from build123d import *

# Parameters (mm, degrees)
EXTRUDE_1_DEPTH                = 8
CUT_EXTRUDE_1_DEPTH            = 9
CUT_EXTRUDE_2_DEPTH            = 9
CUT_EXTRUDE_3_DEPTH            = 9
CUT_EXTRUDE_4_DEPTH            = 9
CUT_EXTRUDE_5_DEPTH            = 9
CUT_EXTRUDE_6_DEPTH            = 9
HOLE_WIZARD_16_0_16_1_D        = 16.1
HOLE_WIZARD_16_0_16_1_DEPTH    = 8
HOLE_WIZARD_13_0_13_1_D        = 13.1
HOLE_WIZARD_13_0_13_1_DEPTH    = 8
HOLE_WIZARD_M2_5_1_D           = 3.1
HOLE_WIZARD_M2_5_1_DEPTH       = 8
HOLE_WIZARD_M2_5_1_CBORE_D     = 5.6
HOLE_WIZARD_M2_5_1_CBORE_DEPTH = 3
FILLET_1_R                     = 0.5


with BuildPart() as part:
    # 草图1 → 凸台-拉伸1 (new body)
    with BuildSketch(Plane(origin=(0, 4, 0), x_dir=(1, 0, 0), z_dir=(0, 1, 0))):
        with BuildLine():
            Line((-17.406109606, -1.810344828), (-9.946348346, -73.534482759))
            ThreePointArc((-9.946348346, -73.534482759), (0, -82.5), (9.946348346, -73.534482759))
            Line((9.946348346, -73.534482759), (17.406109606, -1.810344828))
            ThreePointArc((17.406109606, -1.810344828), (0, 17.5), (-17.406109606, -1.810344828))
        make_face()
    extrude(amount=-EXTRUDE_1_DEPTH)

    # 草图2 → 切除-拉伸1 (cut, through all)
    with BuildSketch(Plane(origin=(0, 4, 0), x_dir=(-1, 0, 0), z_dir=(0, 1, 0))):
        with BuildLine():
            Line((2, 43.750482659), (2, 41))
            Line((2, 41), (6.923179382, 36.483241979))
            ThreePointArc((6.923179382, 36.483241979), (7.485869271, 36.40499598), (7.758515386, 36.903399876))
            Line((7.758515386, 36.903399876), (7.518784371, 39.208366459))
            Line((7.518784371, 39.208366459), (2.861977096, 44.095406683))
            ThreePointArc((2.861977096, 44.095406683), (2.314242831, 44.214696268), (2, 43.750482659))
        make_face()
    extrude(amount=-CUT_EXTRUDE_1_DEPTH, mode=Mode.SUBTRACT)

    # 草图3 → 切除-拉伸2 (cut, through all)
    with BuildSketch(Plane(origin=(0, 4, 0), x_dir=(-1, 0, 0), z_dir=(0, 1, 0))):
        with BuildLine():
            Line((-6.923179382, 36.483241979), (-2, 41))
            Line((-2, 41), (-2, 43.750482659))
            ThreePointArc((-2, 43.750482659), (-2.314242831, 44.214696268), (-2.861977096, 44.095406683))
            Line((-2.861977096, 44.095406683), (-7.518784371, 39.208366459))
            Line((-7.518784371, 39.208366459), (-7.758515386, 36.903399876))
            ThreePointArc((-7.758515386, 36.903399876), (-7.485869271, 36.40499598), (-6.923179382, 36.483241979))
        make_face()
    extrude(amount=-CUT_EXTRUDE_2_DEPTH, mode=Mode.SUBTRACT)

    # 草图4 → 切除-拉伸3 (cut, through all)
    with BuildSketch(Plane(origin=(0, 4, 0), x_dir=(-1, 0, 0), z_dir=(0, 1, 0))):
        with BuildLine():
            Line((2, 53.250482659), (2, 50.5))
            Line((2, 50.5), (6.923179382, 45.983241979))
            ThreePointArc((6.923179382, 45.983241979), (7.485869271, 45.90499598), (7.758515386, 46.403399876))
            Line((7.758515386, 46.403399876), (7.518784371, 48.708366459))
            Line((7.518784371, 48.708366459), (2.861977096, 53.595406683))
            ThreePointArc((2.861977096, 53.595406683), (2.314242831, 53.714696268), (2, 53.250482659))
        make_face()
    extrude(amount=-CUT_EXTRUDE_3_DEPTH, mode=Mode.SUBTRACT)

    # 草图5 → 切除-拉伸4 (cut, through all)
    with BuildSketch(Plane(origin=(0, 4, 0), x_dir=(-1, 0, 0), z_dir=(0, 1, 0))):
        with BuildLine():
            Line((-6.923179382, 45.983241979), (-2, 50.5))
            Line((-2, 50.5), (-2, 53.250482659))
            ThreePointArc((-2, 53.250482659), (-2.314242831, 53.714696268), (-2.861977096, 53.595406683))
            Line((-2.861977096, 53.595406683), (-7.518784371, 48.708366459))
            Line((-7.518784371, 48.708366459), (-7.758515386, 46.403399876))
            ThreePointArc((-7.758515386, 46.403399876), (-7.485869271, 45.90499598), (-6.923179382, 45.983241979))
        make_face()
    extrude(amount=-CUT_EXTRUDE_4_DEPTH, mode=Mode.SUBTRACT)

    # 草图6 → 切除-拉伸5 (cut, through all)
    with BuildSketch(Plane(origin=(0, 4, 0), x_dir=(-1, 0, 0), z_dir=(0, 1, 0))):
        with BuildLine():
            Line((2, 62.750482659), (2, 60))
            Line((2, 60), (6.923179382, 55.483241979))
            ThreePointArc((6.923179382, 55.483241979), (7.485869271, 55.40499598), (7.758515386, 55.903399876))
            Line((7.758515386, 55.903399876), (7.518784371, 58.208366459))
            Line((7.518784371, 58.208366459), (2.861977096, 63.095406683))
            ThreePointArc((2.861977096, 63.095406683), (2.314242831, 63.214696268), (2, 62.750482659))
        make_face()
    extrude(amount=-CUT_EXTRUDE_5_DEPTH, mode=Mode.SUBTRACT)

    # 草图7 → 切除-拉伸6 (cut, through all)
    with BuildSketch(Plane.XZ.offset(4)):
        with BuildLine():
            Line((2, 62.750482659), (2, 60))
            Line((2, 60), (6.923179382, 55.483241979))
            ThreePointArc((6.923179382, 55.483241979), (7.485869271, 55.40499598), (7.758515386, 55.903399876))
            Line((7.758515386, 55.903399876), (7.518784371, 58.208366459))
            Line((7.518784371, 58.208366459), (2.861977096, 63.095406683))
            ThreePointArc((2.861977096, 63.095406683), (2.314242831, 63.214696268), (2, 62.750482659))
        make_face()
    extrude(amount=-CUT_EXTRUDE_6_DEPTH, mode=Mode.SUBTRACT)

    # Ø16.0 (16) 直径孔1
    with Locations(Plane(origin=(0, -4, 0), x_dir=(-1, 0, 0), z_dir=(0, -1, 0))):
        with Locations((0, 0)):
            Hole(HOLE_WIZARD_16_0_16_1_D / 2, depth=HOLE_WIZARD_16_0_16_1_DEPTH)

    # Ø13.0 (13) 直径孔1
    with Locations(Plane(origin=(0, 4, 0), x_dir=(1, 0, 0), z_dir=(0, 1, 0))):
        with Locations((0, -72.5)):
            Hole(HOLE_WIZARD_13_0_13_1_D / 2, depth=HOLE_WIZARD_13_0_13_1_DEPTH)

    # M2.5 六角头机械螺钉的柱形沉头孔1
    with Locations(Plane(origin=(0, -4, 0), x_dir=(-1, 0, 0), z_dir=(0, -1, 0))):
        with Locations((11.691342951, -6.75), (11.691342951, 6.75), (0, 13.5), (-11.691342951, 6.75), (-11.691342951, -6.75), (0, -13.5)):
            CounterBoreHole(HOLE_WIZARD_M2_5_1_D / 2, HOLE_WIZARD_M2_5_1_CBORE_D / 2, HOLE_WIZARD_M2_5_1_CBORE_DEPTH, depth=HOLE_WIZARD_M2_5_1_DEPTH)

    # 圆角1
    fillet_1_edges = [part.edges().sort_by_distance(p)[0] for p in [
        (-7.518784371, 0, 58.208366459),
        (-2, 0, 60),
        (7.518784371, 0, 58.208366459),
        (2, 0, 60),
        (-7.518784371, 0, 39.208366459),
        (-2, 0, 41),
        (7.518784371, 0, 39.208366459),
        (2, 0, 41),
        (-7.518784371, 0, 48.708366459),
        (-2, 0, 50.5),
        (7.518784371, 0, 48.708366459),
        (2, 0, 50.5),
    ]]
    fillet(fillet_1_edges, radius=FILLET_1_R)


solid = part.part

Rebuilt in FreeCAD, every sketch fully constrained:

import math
import FreeCAD as App
import Part
import Sketcher
Q = App.Units.Quantity


def edges_at(feature, points):
    """Names of the edges that pass closest to the given points."""
    edges = feature.Shape.Edges
    near = lambda p: min(range(len(edges)), key=lambda i: edges[i].distToShape(Part.Vertex(*p))[0])
    return sorted({f"Edge{near(p) + 1}" for p in points})

doc = App.newDocument("Part")
params = doc.addObject("Spreadsheet::Sheet", "Params")
for row, (alias, value) in enumerate([
    ("sketch1_radius", "10 mm"),
    ("sketch1_radius2", "17.5 mm"),
    ("pad1_length", "8 mm"),
    ("sketch2_radius", "0.5 mm"),
    ("sketch3_radius", "0.5 mm"),
    ("sketch4_radius", "0.5 mm"),
    ("sketch5_radius", "0.5 mm"),
    ("sketch6_radius", "0.5 mm"),
    ("sketch7_radius", "0.5 mm"),
    ("sketch8_diameter", "16.1 mm"),
    ("hole_diameter", "16.1 mm"),
    ("hole_depth", "8 mm"),
    ("sketch9_diameter", "13.1 mm"),
    ("hole2_diameter", "13.1 mm"),
    ("hole2_depth", "8 mm"),
    ("sketch10_diameter", "3.1 mm"),
    ("hole3_diameter", "3.1 mm"),
    ("hole3_depth", "8 mm"),
    ("hole3_cbore_diameter", "5.6 mm"),
    ("hole3_cbore_depth", "3 mm"),
    ("fillet_radius", "0.5 mm"),
], start=1):
    params.set(f"A{row}", alias)
    params.set(f"B{row}", "=" + value)
    params.setAlias(f"B{row}", alias)

body = doc.addObject("PartDesign::Body", "Body")

sketch1 = body.newObject("Sketcher::SketchObject", "Sketch")
sketch1.AttachmentSupport = (doc.getObject("XZ_Plane"), [""])
sketch1.MapMode = "FlatFace"
sketch1.AttachmentOffset = App.Placement(App.Vector(0, 0, -4), App.Rotation())
sketch1.addGeometry([
    Part.LineSegment(App.Vector(-17.40611, 1.810345, 0), App.Vector(-9.946348, 73.534483, 0)),
    Part.ArcOfCircle(Part.Circle(App.Vector(0, 72.5, 0), App.Vector(0, 0, 1), 10), math.radians(5.937772), math.radians(174.062228)),
    Part.LineSegment(App.Vector(9.946348, 73.534483, 0), App.Vector(17.40611, 1.810345, 0)),
    Part.ArcOfCircle(Part.Circle(App.Vector(0, 0, 0), App.Vector(0, 0, 1), 17.5), math.radians(174.062228), math.radians(365.937772)),
], False)
sketch1.addConstraint([
    Sketcher.Constraint("Tangent", 0, 2, 1, 2),
    Sketcher.Constraint("Tangent", 1, 1, 2, 1),
    Sketcher.Constraint("Tangent", 2, 2, 3, 2),
    Sketcher.Constraint("Tangent", 3, 1, 0, 1),
    Sketcher.Constraint("Coincident", 3, 3, -1, 1),
    Sketcher.Constraint("PointOnObject", 1, 3, -2),
    Sketcher.Constraint("Radius", 1, Q("10 mm")),
    Sketcher.Constraint("Radius", 3, Q("17.5 mm")),
    Sketcher.Constraint("DistanceY", -1, 1, 1, 3, Q("72.5 mm")),
])
sketch1.setExpression("Constraints[6]", "Params.sketch1_radius")
sketch1.setExpression("Constraints[7]", "Params.sketch1_radius2")
pad1 = body.newObject("PartDesign::Pad", "Pad")
pad1.Profile = sketch1
pad1.setExpression("Length", "Params.pad1_length")

sketch2 = body.newObject("Sketcher::SketchObject", "Sketch001")
sketch2.AttachmentSupport = (doc.getObject("XZ_Plane"), [""])
sketch2.MapMode = "FlatFace"
sketch2.AttachmentOffset = App.Placement(App.Vector(0, 0, -4), App.Rotation())
sketch2.addGeometry([
    Part.LineSegment(App.Vector(-2, 43.750483, 0), App.Vector(-2, 41, 0)),
    Part.LineSegment(App.Vector(-2, 41, 0), App.Vector(-6.923179, 36.483242, 0)),
    Part.ArcOfCircle(Part.Circle(App.Vector(-7.261198, 36.851676, 0), App.Vector(0, 0, 1), 0.5), math.radians(174.062227), math.radians(312.534745)),
    Part.LineSegment(App.Vector(-7.758515, 36.9034, 0), App.Vector(-7.518784, 39.208366, 0)),
    Part.LineSegment(App.Vector(-7.518784, 39.208366, 0), App.Vector(-2.861977, 44.095407, 0)),
    Part.ArcOfCircle(Part.Circle(App.Vector(-2.5, 43.750483, 0), App.Vector(0, 0, 1), 0.5), math.radians(0), math.radians(136.381918)),
], False)
sketch2.addConstraint([
    Sketcher.Constraint("Coincident", 0, 2, 1, 1),
    Sketcher.Constraint("Tangent", 1, 2, 2, 2),
    Sketcher.Constraint("Tangent", 2, 1, 3, 1),
    Sketcher.Constraint("Coincident", 3, 2, 4, 1),
    Sketcher.Constraint("Tangent", 4, 2, 5, 2),
    Sketcher.Constraint("Tangent", 5, 1, 0, 1),
    Sketcher.Constraint("Vertical", 0),
    Sketcher.Constraint("Equal", 2, 5),
    Sketcher.Constraint("Radius", 2, Q("0.5 mm")),
    Sketcher.Constraint("DistanceX", 0, 2, -1, 1, Q("2 mm")),
    Sketcher.Constraint("DistanceY", -1, 1, 0, 2, Q("41 mm")),
    Sketcher.Constraint("Distance", 3, Q("2.3174 mm")),
    Sketcher.Constraint("DistanceY", -1, 1, 2, 1, Q("36.9034 mm")),
    Sketcher.Constraint("DistanceY", 0, 2, 0, 1, Q("2.750483 mm")),
    Sketcher.Constraint("DistanceX", 1, 2, -1, 1, Q("6.923179 mm")),
    Sketcher.Constraint("DistanceY", -1, 1, 1, 2, Q("36.483242 mm")),
])
sketch2.setExpression("Constraints[8]", "Params.sketch2_radius")
pocket1 = body.newObject("PartDesign::Pocket", "Pocket")
pocket1.Profile = sketch2
pocket1.Type = "ThroughAll"
pocket1.Reversed = True

sketch3 = body.newObject("Sketcher::SketchObject", "Sketch002")
sketch3.AttachmentSupport = (doc.getObject("XZ_Plane"), [""])
sketch3.MapMode = "FlatFace"
sketch3.AttachmentOffset = App.Placement(App.Vector(0, 0, -4), App.Rotation())
sketch3.addGeometry([
    Part.LineSegment(App.Vector(6.923179, 36.483242, 0), App.Vector(2, 41, 0)),
    Part.LineSegment(App.Vector(2, 41, 0), App.Vector(2, 43.750483, 0)),
    Part.ArcOfCircle(Part.Circle(App.Vector(2.5, 43.750483, 0), App.Vector(0, 0, 1), 0.5), math.radians(43.618082), math.radians(180)),
    Part.LineSegment(App.Vector(2.861977, 44.095407, 0), App.Vector(7.518784, 39.208366, 0)),
    Part.LineSegment(App.Vector(7.518784, 39.208366, 0), App.Vector(7.758515, 36.9034, 0)),
    Part.ArcOfCircle(Part.Circle(App.Vector(7.261198, 36.851676, 0), App.Vector(0, 0, 1), 0.5), math.radians(-132.534745), math.radians(5.937773)),
], False)
sketch3.addConstraint([
    Sketcher.Constraint("Coincident", 0, 2, 1, 1),
    Sketcher.Constraint("Tangent", 1, 2, 2, 2),
    Sketcher.Constraint("Tangent", 2, 1, 3, 1),
    Sketcher.Constraint("Coincident", 3, 2, 4, 1),
    Sketcher.Constraint("Tangent", 4, 2, 5, 2),
    Sketcher.Constraint("Tangent", 5, 1, 0, 1),
    Sketcher.Constraint("Vertical", 1),
    Sketcher.Constraint("Equal", 2, 5),
    Sketcher.Constraint("Radius", 2, Q("0.5 mm")),
    Sketcher.Constraint("DistanceX", -1, 1, 0, 2, Q("2 mm")),
    Sketcher.Constraint("DistanceY", -1, 1, 0, 2, Q("41 mm")),
    Sketcher.Constraint("Distance", 4, Q("2.3174 mm")),
    Sketcher.Constraint("DistanceY", -1, 1, 4, 2, Q("36.9034 mm")),
    Sketcher.Constraint("DistanceY", 1, 1, 1, 2, Q("2.750483 mm")),
    Sketcher.Constraint("DistanceX", -1, 1, 5, 1, Q("6.923179 mm")),
    Sketcher.Constraint("DistanceY", -1, 1, 5, 1, Q("36.483242 mm")),
])
sketch3.setExpression("Constraints[8]", "Params.sketch3_radius")
pocket2 = body.newObject("PartDesign::Pocket", "Pocket001")
pocket2.Profile = sketch3
pocket2.Type = "ThroughAll"
pocket2.Reversed = True

sketch4 = body.newObject("Sketcher::SketchObject", "Sketch003")
sketch4.AttachmentSupport = (doc.getObject("XZ_Plane"), [""])
sketch4.MapMode = "FlatFace"
sketch4.AttachmentOffset = App.Placement(App.Vector(0, 0, -4), App.Rotation())
sketch4.addGeometry([
    Part.LineSegment(App.Vector(-2, 53.250483, 0), App.Vector(-2, 50.5, 0)),
    Part.LineSegment(App.Vector(-2, 50.5, 0), App.Vector(-6.923179, 45.983242, 0)),
    Part.ArcOfCircle(Part.Circle(App.Vector(-7.261198, 46.351676, 0), App.Vector(0, 0, 1), 0.5), math.radians(174.062227), math.radians(312.534745)),
    Part.LineSegment(App.Vector(-7.758515, 46.4034, 0), App.Vector(-7.518784, 48.708366, 0)),
    Part.LineSegment(App.Vector(-7.518784, 48.708366, 0), App.Vector(-2.861977, 53.595407, 0)),
    Part.ArcOfCircle(Part.Circle(App.Vector(-2.5, 53.250483, 0), App.Vector(0, 0, 1), 0.5), math.radians(0), math.radians(136.381918)),
], False)
sketch4.addConstraint([
    Sketcher.Constraint("Coincident", 0, 2, 1, 1),
    Sketcher.Constraint("Tangent", 1, 2, 2, 2),
    Sketcher.Constraint("Tangent", 2, 1, 3, 1),
    Sketcher.Constraint("Coincident", 3, 2, 4, 1),
    Sketcher.Constraint("Tangent", 4, 2, 5, 2),
    Sketcher.Constraint("Tangent", 5, 1, 0, 1),
    Sketcher.Constraint("Vertical", 0),
    Sketcher.Constraint("Equal", 2, 5),
    Sketcher.Constraint("Radius", 2, Q("0.5 mm")),
    Sketcher.Constraint("DistanceX", 0, 2, -1, 1, Q("2 mm")),
    Sketcher.Constraint("DistanceY", -1, 1, 0, 2, Q("50.5 mm")),
    Sketcher.Constraint("Distance", 3, Q("2.3174 mm")),
    Sketcher.Constraint("DistanceY", -1, 1, 2, 1, Q("46.4034 mm")),
    Sketcher.Constraint("DistanceY", 0, 2, 0, 1, Q("2.750483 mm")),
    Sketcher.Constraint("DistanceX", 1, 2, -1, 1, Q("6.923179 mm")),
    Sketcher.Constraint("DistanceY", -1, 1, 1, 2, Q("45.983242 mm")),
])
sketch4.setExpression("Constraints[8]", "Params.sketch4_radius")
pocket3 = body.newObject("PartDesign::Pocket", "Pocket002")
pocket3.Profile = sketch4
pocket3.Type = "ThroughAll"
pocket3.Reversed = True

sketch5 = body.newObject("Sketcher::SketchObject", "Sketch004")
sketch5.AttachmentSupport = (doc.getObject("XZ_Plane"), [""])
sketch5.MapMode = "FlatFace"
sketch5.AttachmentOffset = App.Placement(App.Vector(0, 0, -4), App.Rotation())
sketch5.addGeometry([
    Part.LineSegment(App.Vector(6.923179, 45.983242, 0), App.Vector(2, 50.5, 0)),
    Part.LineSegment(App.Vector(2, 50.5, 0), App.Vector(2, 53.250483, 0)),
    Part.ArcOfCircle(Part.Circle(App.Vector(2.5, 53.250483, 0), App.Vector(0, 0, 1), 0.5), math.radians(43.618082), math.radians(180)),
    Part.LineSegment(App.Vector(2.861977, 53.595407, 0), App.Vector(7.518784, 48.708366, 0)),
    Part.LineSegment(App.Vector(7.518784, 48.708366, 0), App.Vector(7.758515, 46.4034, 0)),
    Part.ArcOfCircle(Part.Circle(App.Vector(7.261198, 46.351676, 0), App.Vector(0, 0, 1), 0.5), math.radians(-132.534745), math.radians(5.937773)),
], False)
sketch5.addConstraint([
    Sketcher.Constraint("Coincident", 0, 2, 1, 1),
    Sketcher.Constraint("Tangent", 1, 2, 2, 2),
    Sketcher.Constraint("Tangent", 2, 1, 3, 1),
    Sketcher.Constraint("Coincident", 3, 2, 4, 1),
    Sketcher.Constraint("Tangent", 4, 2, 5, 2),
    Sketcher.Constraint("Tangent", 5, 1, 0, 1),
    Sketcher.Constraint("Vertical", 1),
    Sketcher.Constraint("Equal", 2, 5),
    Sketcher.Constraint("Radius", 2, Q("0.5 mm")),
    Sketcher.Constraint("DistanceX", -1, 1, 0, 2, Q("2 mm")),
    Sketcher.Constraint("DistanceY", -1, 1, 0, 2, Q("50.5 mm")),
    Sketcher.Constraint("Distance", 4, Q("2.3174 mm")),
    Sketcher.Constraint("DistanceY", -1, 1, 4, 2, Q("46.4034 mm")),
    Sketcher.Constraint("DistanceY", 1, 1, 1, 2, Q("2.750483 mm")),
    Sketcher.Constraint("DistanceX", -1, 1, 5, 1, Q("6.923179 mm")),
    Sketcher.Constraint("DistanceY", -1, 1, 5, 1, Q("45.983242 mm")),
])
sketch5.setExpression("Constraints[8]", "Params.sketch5_radius")
pocket4 = body.newObject("PartDesign::Pocket", "Pocket003")
pocket4.Profile = sketch5
pocket4.Type = "ThroughAll"
pocket4.Reversed = True

sketch6 = body.newObject("Sketcher::SketchObject", "Sketch005")
sketch6.AttachmentSupport = (doc.getObject("XZ_Plane"), [""])
sketch6.MapMode = "FlatFace"
sketch6.AttachmentOffset = App.Placement(App.Vector(0, 0, -4), App.Rotation())
sketch6.addGeometry([
    Part.LineSegment(App.Vector(-2, 62.750483, 0), App.Vector(-2, 60, 0)),
    Part.LineSegment(App.Vector(-2, 60, 0), App.Vector(-6.923179, 55.483242, 0)),
    Part.ArcOfCircle(Part.Circle(App.Vector(-7.261198, 55.851676, 0), App.Vector(0, 0, 1), 0.5), math.radians(174.062227), math.radians(312.534745)),
    Part.LineSegment(App.Vector(-7.758515, 55.9034, 0), App.Vector(-7.518784, 58.208366, 0)),
    Part.LineSegment(App.Vector(-7.518784, 58.208366, 0), App.Vector(-2.861977, 63.095407, 0)),
    Part.ArcOfCircle(Part.Circle(App.Vector(-2.5, 62.750483, 0), App.Vector(0, 0, 1), 0.5), math.radians(0), math.radians(136.381918)),
], False)
sketch6.addConstraint([
    Sketcher.Constraint("Coincident", 0, 2, 1, 1),
    Sketcher.Constraint("Tangent", 1, 2, 2, 2),
    Sketcher.Constraint("Tangent", 2, 1, 3, 1),
    Sketcher.Constraint("Coincident", 3, 2, 4, 1),
    Sketcher.Constraint("Tangent", 4, 2, 5, 2),
    Sketcher.Constraint("Tangent", 5, 1, 0, 1),
    Sketcher.Constraint("Vertical", 0),
    Sketcher.Constraint("Equal", 2, 5),
    Sketcher.Constraint("Radius", 2, Q("0.5 mm")),
    Sketcher.Constraint("DistanceX", 0, 2, -1, 1, Q("2 mm")),
    Sketcher.Constraint("DistanceY", -1, 1, 0, 2, Q("60 mm")),
    Sketcher.Constraint("Distance", 3, Q("2.3174 mm")),
    Sketcher.Constraint("DistanceY", -1, 1, 2, 1, Q("55.9034 mm")),
    Sketcher.Constraint("DistanceY", 0, 2, 0, 1, Q("2.750483 mm")),
    Sketcher.Constraint("DistanceX", 1, 2, -1, 1, Q("6.923179 mm")),
    Sketcher.Constraint("DistanceY", -1, 1, 1, 2, Q("55.483242 mm")),
])
sketch6.setExpression("Constraints[8]", "Params.sketch6_radius")
pocket5 = body.newObject("PartDesign::Pocket", "Pocket004")
pocket5.Profile = sketch6
pocket5.Type = "ThroughAll"
pocket5.Reversed = True

sketch7 = body.newObject("Sketcher::SketchObject", "Sketch006")
sketch7.AttachmentSupport = (doc.getObject("XZ_Plane"), [""])
sketch7.MapMode = "FlatFace"
sketch7.AttachmentOffset = App.Placement(App.Vector(0, 0, 4), App.Rotation())
sketch7.addGeometry([
    Part.LineSegment(App.Vector(2, 62.750483, 0), App.Vector(2, 60, 0)),
    Part.LineSegment(App.Vector(2, 60, 0), App.Vector(6.923179, 55.483242, 0)),
    Part.ArcOfCircle(Part.Circle(App.Vector(7.261198, 55.851676, 0), App.Vector(0, 0, 1), 0.5), math.radians(-132.534745), math.radians(5.937773)),
    Part.LineSegment(App.Vector(7.758515, 55.9034, 0), App.Vector(7.518784, 58.208366, 0)),
    Part.LineSegment(App.Vector(7.518784, 58.208366, 0), App.Vector(2.861977, 63.095407, 0)),
    Part.ArcOfCircle(Part.Circle(App.Vector(2.5, 62.750483, 0), App.Vector(0, 0, 1), 0.5), math.radians(43.618082), math.radians(180)),
], False)
sketch7.addConstraint([
    Sketcher.Constraint("Coincident", 0, 2, 1, 1),
    Sketcher.Constraint("Tangent", 1, 2, 2, 1),
    Sketcher.Constraint("Tangent", 2, 2, 3, 1),
    Sketcher.Constraint("Coincident", 3, 2, 4, 1),
    Sketcher.Constraint("Tangent", 4, 2, 5, 1),
    Sketcher.Constraint("Tangent", 5, 2, 0, 1),
    Sketcher.Constraint("Vertical", 0),
    Sketcher.Constraint("Equal", 2, 5),
    Sketcher.Constraint("Radius", 2, Q("0.5 mm")),
    Sketcher.Constraint("DistanceX", -1, 1, 0, 2, Q("2 mm")),
    Sketcher.Constraint("DistanceY", -1, 1, 0, 2, Q("60 mm")),
    Sketcher.Constraint("Distance", 3, Q("2.3174 mm")),
    Sketcher.Constraint("DistanceY", -1, 1, 2, 2, Q("55.9034 mm")),
    Sketcher.Constraint("DistanceY", 0, 2, 0, 1, Q("2.750483 mm")),
    Sketcher.Constraint("DistanceX", -1, 1, 1, 2, Q("6.923179 mm")),
    Sketcher.Constraint("DistanceY", -1, 1, 1, 2, Q("55.483242 mm")),
])
sketch7.setExpression("Constraints[8]", "Params.sketch7_radius")
pocket6 = body.newObject("PartDesign::Pocket", "Pocket005")
pocket6.Profile = sketch7
pocket6.Type = "ThroughAll"

sketch8 = body.newObject("Sketcher::SketchObject", "Sketch007")
sketch8.AttachmentSupport = (doc.getObject("XZ_Plane"), [""])
sketch8.MapMode = "FlatFace"
sketch8.AttachmentOffset = App.Placement(App.Vector(0, 0, 4), App.Rotation())
sketch8.addGeometry(Part.Circle(App.Vector(0, 0, 0), App.Vector(0, 0, 1), 8.05), False)
sketch8.addConstraint([
    Sketcher.Constraint("Coincident", 0, 3, -1, 1),
    Sketcher.Constraint("Diameter", 0, Q("16.1 mm")),
])
sketch8.setExpression("Constraints[1]", "Params.sketch8_diameter")
doc.recompute()
hole = body.newObject("PartDesign::Hole", "Hole")
hole.Profile = sketch8
hole.ThreadType = "None"
hole.setExpression("Diameter", "Params.hole_diameter")
hole.DepthType = "Dimension"
hole.setExpression("Depth", "Params.hole_depth")
hole.DrillPoint = "Flat"

sketch9 = body.newObject("Sketcher::SketchObject", "Sketch008")
sketch9.AttachmentSupport = (doc.getObject("XZ_Plane"), [""])
sketch9.MapMode = "FlatFace"
sketch9.AttachmentOffset = App.Placement(App.Vector(0, 0, -4), App.Rotation())
sketch9.addGeometry(Part.Circle(App.Vector(0, 72.5, 0), App.Vector(0, 0, 1), 6.55), False)
sketch9.addConstraint([
    Sketcher.Constraint("PointOnObject", 0, 3, -2),
    Sketcher.Constraint("Diameter", 0, Q("13.1 mm")),
    Sketcher.Constraint("DistanceY", -1, 1, 0, 3, Q("72.5 mm")),
])
sketch9.setExpression("Constraints[1]", "Params.sketch9_diameter")
doc.recompute()
hole2 = body.newObject("PartDesign::Hole", "Hole001")
hole2.Profile = sketch9
hole2.ThreadType = "None"
hole2.setExpression("Diameter", "Params.hole2_diameter")
hole2.DepthType = "Dimension"
hole2.setExpression("Depth", "Params.hole2_depth")
hole2.DrillPoint = "Flat"
hole2.Reversed = True

sketch10 = body.newObject("Sketcher::SketchObject", "Sketch009")
sketch10.AttachmentSupport = (doc.getObject("XZ_Plane"), [""])
sketch10.MapMode = "FlatFace"
sketch10.AttachmentOffset = App.Placement(App.Vector(0, 0, 4), App.Rotation())
sketch10.addGeometry([
    Part.Circle(App.Vector(-11.691343, 6.75, 0), App.Vector(0, 0, 1), 1.55),
    Part.Circle(App.Vector(-11.691343, -6.75, 0), App.Vector(0, 0, 1), 1.55),
    Part.Circle(App.Vector(0, -13.5, 0), App.Vector(0, 0, 1), 1.55),
    Part.Circle(App.Vector(11.691343, -6.75, 0), App.Vector(0, 0, 1), 1.55),
    Part.Circle(App.Vector(11.691343, 6.75, 0), App.Vector(0, 0, 1), 1.55),
    Part.Circle(App.Vector(0, 13.5, 0), App.Vector(0, 0, 1), 1.55),
], False)
sketch10.addConstraint([
    Sketcher.Constraint("Equal", 0, 1),
    Sketcher.Constraint("Equal", 1, 2),
    Sketcher.Constraint("Equal", 2, 3),
    Sketcher.Constraint("Equal", 3, 4),
    Sketcher.Constraint("Equal", 4, 5),
    Sketcher.Constraint("Symmetric", 0, 3, 3, 3, -1, 1),
    Sketcher.Constraint("Symmetric", 1, 3, 4, 3, -1, 1),
    Sketcher.Constraint("Symmetric", 2, 3, 5, 3, -1, 1),
    Sketcher.Constraint("Symmetric", 1, 3, 3, 3, -2),
    Sketcher.Constraint("PointOnObject", 2, 3, -2),
    Sketcher.Constraint("Diameter", 0, Q("3.1 mm")),
    Sketcher.Constraint("DistanceY", 2, 3, 5, 3, Q("27 mm")),
    Sketcher.Constraint("DistanceY", 1, 3, 0, 3, Q("13.5 mm")),
    Sketcher.Constraint("DistanceX", 0, 3, -1, 1, Q("11.691343 mm")),
])
sketch10.setExpression("Constraints[10]", "Params.sketch10_diameter")
doc.recompute()
hole3 = body.newObject("PartDesign::Hole", "Hole002")
hole3.Profile = sketch10
hole3.ThreadType = "None"
hole3.setExpression("Diameter", "Params.hole3_diameter")
hole3.DepthType = "Dimension"
hole3.setExpression("Depth", "Params.hole3_depth")
hole3.DrillPoint = "Flat"
hole3.HoleCutType = "Counterbore"
hole3.setExpression("HoleCutDiameter", "Params.hole3_cbore_diameter")
hole3.setExpression("HoleCutDepth", "Params.hole3_cbore_depth")
doc.recompute()

fillet = body.newObject("PartDesign::Fillet", "Fillet")
fillet.Base = (hole3, edges_at(hole3, [
    (-7.519, 0, 58.208),
    (-2, 0, 60),
    (7.519, 0, 58.208),
    (2, 0, 60),
    (-7.519, 0, 39.208),
    (-2, 0, 41),
    (7.519, 0, 39.208),
    (2, 0, 41),
    (-7.519, 0, 48.708),
    (-2, 0, 50.5),
    (7.519, 0, 48.708),
    (2, 0, 50.5),
]))
fillet.setExpression("Radius", "Params.fillet_radius")

doc.recompute()
